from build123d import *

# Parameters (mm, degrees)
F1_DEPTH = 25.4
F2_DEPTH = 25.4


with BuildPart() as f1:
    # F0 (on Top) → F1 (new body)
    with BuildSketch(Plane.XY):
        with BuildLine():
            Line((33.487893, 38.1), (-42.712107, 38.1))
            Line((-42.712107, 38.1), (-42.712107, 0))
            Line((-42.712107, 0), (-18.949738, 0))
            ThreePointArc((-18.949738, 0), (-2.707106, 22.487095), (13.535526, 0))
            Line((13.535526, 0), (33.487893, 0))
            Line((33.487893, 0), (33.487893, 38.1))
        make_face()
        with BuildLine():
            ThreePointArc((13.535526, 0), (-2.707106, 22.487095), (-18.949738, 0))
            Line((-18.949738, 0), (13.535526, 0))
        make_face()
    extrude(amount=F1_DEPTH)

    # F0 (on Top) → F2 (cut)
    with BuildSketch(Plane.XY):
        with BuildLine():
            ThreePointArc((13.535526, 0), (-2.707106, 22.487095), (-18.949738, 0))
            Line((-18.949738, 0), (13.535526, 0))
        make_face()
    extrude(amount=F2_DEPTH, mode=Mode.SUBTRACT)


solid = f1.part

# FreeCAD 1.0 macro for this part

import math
import FreeCAD as App
import Part
import Sketcher

V = App.Vector
Q = App.Units.Quantity

doc = App.newDocument("Part")
body = doc.addObject("PartDesign::Body", "Body")

# Sketch on XY plane
sketch1 = body.newObject("Sketcher::SketchObject", "Sketch")
sketch1.AttachmentSupport = (doc.getObject("XY_Plane"), [""])
sketch1.MapMode = "FlatFace"
sketch1.addGeometry([
    Part.LineSegment(V(33, 38, 0), V(-43, 38, 0)),
    Part.LineSegment(V(-43, 38, 0), V(-43, 0, 0)),
    Part.LineSegment(V(-43, 0, 0), V(33, 0, 0)),
    Part.LineSegment(V(33, 0, 0), V(33, 38, 0)),
], False)
sketch1.addConstraint([
    Sketcher.Constraint("Coincident", 0, 2, 1, 1),
    Sketcher.Constraint("Coincident", 1, 2, 2, 1),
    Sketcher.Constraint("Coincident", 2, 2, 3, 1),
    Sketcher.Constraint("Coincident", 3, 2, 0, 1),
    Sketcher.Constraint("Horizontal", 0),
    Sketcher.Constraint("Vertical", 1),
    Sketcher.Constraint("Horizontal", 2),
    Sketcher.Constraint("Vertical", 3),
    Sketcher.Constraint("PointOnObject", 1, 2, -1),
    Sketcher.Constraint("DistanceX", 0, 2, 0, 1, Q("3 in")),
    Sketcher.Constraint("DistanceY", 1, 2, 1, 1, Q("1.5 in")),
    Sketcher.Constraint("DistanceX", 0, 2, -1, 1, 42.712107),
])
pad1 = body.newObject("PartDesign::Pad", "Pad")
pad1.Profile = sketch1
pad1.Length = Q("1 in")

# Sketch on XY plane
sketch2 = body.newObject("Sketcher::SketchObject", "Sketch001")
sketch2.AttachmentSupport = (doc.getObject("XY_Plane"), [""])
sketch2.MapMode = "FlatFace"
sketch2.addGeometry([
    Part.ArcOfCircle(Part.Circle(V(-3, 5, 0), V(0, 0, 1), 17), math.radians(-18), math.radians(198)),
    Part.LineSegment(V(-19, 0, 0), V(14, 0, 0)),
], False)
sketch2.addConstraint([
    Sketcher.Constraint("Coincident", 0, 1, 1, 2),
    Sketcher.Constraint("Coincident", 1, 1, 0, 2),
    Sketcher.Constraint("Horizontal", 1),
    Sketcher.Constraint("PointOnObject", 0, 1, -1),
    Sketcher.Constraint("Radius", 0, 17.109647),
    Sketcher.Constraint("DistanceX", 1, 1, 1, 2, 32.485264),
    Sketcher.Constraint("DistanceX", 1, 1, -1, 1, 18.949738),
])
pocket1 = body.newObject("PartDesign::Pocket", "Pocket")
pocket1.Profile = sketch2
pocket1.Length = Q("1 in")
pocket1.Reversed = True

doc.recompute()
